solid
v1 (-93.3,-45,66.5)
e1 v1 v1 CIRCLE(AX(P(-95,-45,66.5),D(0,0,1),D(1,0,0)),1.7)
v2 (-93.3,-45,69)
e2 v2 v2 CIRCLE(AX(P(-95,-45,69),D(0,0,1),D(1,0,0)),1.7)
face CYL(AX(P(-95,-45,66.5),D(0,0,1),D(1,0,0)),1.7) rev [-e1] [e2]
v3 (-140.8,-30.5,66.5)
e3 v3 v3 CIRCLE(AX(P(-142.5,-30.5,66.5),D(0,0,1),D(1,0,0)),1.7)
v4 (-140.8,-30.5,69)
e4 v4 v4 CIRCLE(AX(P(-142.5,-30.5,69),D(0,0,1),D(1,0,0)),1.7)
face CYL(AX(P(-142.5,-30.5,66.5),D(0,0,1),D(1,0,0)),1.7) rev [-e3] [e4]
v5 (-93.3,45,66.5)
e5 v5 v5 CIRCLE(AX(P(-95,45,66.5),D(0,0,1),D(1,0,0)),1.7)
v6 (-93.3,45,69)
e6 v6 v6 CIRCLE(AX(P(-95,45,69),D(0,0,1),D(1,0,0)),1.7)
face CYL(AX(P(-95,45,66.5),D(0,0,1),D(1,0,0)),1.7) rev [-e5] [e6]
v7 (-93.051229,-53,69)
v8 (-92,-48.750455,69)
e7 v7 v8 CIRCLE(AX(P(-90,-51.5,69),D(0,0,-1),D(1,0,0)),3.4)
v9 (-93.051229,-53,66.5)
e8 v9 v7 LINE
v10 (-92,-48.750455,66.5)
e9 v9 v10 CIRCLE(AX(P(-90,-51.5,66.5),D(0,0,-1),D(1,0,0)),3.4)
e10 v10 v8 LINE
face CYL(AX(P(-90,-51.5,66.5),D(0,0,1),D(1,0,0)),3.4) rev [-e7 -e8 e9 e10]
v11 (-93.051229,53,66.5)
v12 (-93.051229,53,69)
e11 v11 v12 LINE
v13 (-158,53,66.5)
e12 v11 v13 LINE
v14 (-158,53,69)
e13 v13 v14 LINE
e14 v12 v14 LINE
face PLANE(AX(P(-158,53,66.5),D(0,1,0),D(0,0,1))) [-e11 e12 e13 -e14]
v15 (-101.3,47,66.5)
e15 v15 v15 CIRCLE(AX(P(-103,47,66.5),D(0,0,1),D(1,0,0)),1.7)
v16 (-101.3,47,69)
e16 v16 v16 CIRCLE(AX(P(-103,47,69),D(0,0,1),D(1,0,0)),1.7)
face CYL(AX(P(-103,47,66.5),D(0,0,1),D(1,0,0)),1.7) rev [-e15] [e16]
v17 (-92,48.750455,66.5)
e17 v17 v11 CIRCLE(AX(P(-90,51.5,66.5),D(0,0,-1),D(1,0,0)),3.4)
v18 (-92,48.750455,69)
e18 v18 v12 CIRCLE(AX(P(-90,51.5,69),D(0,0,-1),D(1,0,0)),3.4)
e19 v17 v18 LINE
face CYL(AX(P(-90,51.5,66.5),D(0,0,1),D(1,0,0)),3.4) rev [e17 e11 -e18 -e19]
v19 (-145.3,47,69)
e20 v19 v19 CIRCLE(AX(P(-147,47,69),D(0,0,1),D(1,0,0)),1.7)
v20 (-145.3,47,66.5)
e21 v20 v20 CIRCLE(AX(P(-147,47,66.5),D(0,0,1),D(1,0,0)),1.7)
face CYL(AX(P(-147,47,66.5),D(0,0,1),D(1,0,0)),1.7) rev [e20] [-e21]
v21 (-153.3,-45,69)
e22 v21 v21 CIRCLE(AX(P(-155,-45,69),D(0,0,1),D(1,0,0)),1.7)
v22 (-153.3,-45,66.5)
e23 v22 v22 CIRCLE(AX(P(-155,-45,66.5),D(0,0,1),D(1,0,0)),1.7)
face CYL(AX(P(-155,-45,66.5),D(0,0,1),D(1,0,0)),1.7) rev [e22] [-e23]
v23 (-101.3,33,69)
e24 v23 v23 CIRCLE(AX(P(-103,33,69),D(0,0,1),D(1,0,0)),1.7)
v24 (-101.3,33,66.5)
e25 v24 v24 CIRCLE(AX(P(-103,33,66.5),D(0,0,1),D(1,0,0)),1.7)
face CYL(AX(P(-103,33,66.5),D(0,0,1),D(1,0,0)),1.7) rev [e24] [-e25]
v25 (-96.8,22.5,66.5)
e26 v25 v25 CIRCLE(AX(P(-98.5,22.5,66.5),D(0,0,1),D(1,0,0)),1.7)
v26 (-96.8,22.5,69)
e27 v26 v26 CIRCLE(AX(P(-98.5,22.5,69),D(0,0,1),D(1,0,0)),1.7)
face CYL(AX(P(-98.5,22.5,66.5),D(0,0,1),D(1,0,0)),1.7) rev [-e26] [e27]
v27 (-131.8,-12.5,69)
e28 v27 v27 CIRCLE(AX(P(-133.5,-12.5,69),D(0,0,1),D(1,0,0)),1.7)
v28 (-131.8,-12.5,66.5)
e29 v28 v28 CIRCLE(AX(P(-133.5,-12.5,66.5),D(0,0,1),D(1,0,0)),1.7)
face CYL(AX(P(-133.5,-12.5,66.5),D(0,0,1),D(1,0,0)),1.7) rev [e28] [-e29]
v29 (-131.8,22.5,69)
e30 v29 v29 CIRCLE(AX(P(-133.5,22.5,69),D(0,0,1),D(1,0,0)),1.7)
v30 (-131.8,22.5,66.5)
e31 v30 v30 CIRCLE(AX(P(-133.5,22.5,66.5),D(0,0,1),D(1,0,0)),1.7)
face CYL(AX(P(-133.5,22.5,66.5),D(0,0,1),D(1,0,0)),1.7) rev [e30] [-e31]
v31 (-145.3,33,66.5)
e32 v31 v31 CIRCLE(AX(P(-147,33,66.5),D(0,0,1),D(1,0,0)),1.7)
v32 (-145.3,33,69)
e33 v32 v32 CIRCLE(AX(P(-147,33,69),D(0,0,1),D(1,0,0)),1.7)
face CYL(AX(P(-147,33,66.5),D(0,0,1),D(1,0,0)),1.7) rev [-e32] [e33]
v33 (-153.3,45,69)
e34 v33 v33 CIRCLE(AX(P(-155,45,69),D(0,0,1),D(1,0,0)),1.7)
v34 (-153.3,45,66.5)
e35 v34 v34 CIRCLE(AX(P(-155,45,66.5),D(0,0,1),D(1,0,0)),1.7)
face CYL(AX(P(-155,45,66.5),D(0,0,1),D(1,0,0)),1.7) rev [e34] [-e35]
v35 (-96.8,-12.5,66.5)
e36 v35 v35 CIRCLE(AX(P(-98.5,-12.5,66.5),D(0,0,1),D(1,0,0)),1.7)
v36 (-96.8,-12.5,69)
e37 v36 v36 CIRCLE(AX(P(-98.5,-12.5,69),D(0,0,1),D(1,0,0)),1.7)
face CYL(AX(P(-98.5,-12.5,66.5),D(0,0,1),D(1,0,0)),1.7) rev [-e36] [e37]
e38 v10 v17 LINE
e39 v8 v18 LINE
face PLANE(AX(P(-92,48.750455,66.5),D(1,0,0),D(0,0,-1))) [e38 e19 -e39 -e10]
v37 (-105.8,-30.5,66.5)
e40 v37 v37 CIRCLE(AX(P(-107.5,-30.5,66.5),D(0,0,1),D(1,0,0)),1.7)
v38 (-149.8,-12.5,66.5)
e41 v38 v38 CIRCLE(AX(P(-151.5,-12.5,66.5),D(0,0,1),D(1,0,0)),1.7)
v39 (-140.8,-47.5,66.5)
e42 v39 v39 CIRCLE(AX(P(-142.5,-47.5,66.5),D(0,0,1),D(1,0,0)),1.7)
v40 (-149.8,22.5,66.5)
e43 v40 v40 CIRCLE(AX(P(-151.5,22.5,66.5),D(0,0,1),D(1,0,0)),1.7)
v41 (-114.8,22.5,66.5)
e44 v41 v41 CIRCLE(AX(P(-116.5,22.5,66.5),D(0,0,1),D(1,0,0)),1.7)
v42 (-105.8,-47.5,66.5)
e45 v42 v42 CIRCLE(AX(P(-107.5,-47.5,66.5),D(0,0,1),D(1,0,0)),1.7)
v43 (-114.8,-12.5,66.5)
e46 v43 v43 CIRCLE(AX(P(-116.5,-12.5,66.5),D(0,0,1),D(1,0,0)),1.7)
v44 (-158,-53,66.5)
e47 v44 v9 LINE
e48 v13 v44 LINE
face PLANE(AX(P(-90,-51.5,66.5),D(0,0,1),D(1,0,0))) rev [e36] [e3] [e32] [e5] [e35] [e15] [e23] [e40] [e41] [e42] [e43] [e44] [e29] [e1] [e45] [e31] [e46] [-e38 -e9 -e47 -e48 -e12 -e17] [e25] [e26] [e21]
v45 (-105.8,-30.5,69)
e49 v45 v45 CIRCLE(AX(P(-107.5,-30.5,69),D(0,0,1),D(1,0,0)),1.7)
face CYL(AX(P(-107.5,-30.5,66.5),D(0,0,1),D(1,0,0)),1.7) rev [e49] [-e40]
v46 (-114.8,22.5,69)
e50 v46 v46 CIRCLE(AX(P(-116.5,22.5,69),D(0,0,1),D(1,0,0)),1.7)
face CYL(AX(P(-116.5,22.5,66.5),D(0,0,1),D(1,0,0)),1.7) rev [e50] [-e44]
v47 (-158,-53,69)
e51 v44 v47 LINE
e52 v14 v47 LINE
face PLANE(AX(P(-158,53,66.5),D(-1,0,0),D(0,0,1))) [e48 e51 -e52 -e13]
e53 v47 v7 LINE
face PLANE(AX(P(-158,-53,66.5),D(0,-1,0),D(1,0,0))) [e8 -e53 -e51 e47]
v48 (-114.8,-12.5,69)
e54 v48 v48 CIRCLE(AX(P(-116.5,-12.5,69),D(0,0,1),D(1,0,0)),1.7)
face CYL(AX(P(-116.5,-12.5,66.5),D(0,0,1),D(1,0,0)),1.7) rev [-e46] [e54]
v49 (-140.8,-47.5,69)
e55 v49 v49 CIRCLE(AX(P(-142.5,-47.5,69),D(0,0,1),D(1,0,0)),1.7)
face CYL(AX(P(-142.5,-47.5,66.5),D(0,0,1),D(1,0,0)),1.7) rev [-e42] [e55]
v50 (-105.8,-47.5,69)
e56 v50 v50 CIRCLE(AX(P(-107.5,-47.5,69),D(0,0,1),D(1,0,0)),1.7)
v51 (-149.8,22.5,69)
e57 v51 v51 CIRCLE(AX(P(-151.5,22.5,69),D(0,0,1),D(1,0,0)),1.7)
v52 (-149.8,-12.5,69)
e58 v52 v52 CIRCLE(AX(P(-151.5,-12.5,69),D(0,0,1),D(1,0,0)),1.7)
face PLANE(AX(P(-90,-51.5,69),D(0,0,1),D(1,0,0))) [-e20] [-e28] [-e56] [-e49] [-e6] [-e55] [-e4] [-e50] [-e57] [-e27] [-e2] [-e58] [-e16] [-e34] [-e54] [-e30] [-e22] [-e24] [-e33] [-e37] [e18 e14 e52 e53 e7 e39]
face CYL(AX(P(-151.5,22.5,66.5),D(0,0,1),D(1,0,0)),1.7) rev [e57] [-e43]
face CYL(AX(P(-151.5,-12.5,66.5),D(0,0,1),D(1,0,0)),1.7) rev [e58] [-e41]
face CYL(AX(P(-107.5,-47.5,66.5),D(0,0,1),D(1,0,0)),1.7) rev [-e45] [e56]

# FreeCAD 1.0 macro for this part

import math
import FreeCAD as App
import Part
import Sketcher
from FreeCAD import Vector
Q = App.Units.Quantity

doc = App.newDocument("Part")
body = doc.addObject("PartDesign::Body", "Body")

sketch1 = doc.addObject("Sketcher::SketchObject", "Sketch")
body.addObject(sketch1)
sketch1.AttachmentSupport = (doc.XY_Plane, [""])
sketch1.MapMode = "FlatFace"
sketch1.AttachmentOffset = App.Placement(Vector(0, 0, 69), App.Rotation())
sketch1.addGeometry([
    Part.LineSegment(Vector(-93.1, 53, 0), Vector(-158, 53, 0)),
    Part.LineSegment(Vector(-158, 53, 0), Vector(-158, -53, 0)),
    Part.LineSegment(Vector(-158, -53, 0), Vector(-93.1, -53, 0)),
    Part.ArcOfCircle(Part.Circle(Vector(-90, -51.5, 0), Vector(0, 0, 1), 3.4), math.radians(126), math.radians(206)),
    Part.LineSegment(Vector(-92, -48.8, 0), Vector(-92, 48.8, 0)),
    Part.ArcOfCircle(Part.Circle(Vector(-90, 51.5, 0), Vector(0, 0, 1), 3.4), math.radians(154), math.radians(234)),
    Part.Circle(Vector(-95, -45, 0), Vector(0, 0, 1), 1.7),
    Part.Circle(Vector(-107.5, -47.5, 0), Vector(0, 0, 1), 1.7),
    Part.Circle(Vector(-107.5, -30.5, 0), Vector(0, 0, 1), 1.7),
    Part.Circle(Vector(-98.5, -12.5, 0), Vector(0, 0, 1), 1.7),
    Part.Circle(Vector(-116.5, -12.5, 0), Vector(0, 0, 1), 1.7),
    Part.Circle(Vector(-142.5, -47.5, 0), Vector(0, 0, 1), 1.7),
    Part.Circle(Vector(-155, -45, 0), Vector(0, 0, 1), 1.7),
    Part.Circle(Vector(-142.5, -30.5, 0), Vector(0, 0, 1), 1.7),
    Part.Circle(Vector(-133.5, -12.5, 0), Vector(0, 0, 1), 1.7),
    Part.Circle(Vector(-151.5, -12.5, 0), Vector(0, 0, 1), 1.7),
    Part.Circle(Vector(-98.5, 22.5, 0), Vector(0, 0, 1), 1.7),
    Part.Circle(Vector(-116.5, 22.5, 0), Vector(0, 0, 1), 1.7),
    Part.Circle(Vector(-103, 33, 0), Vector(0, 0, 1), 1.7),
    Part.Circle(Vector(-95, 45, 0), Vector(0, 0, 1), 1.7),
    Part.Circle(Vector(-103, 47, 0), Vector(0, 0, 1), 1.7),
    Part.Circle(Vector(-133.5, 22.5, 0), Vector(0, 0, 1), 1.7),
    Part.Circle(Vector(-151.5, 22.5, 0), Vector(0, 0, 1), 1.7),
    Part.Circle(Vector(-147, 33, 0), Vector(0, 0, 1), 1.7),
    Part.Circle(Vector(-147, 47, 0), Vector(0, 0, 1), 1.7),
    Part.Circle(Vector(-155, 45, 0), Vector(0, 0, 1), 1.7),
], False)
sketch1.addConstraint([
    Sketcher.Constraint("Coincident", 0, 2, 1, 1),
    Sketcher.Constraint("Coincident", 1, 2, 2, 1),
    Sketcher.Constraint("Coincident", 2, 2, 3, 2),
    Sketcher.Constraint("Coincident", 3, 1, 4, 1),
    Sketcher.Constraint("Coincident", 4, 2, 5, 2),
    Sketcher.Constraint("Coincident", 5, 1, 0, 1),
    Sketcher.Constraint("Horizontal", 0),
    Sketcher.Constraint("Vertical", 1),
    Sketcher.Constraint("Horizontal", 2),
    Sketcher.Constraint("Vertical", 4),
    Sketcher.Constraint("Equal", 3, 5),
    Sketcher.Constraint("Equal", 6, 7),
    Sketcher.Constraint("Equal", 7, 8),
    Sketcher.Constraint("Equal", 8, 9),
    Sketcher.Constraint("Equal", 9, 10),
    Sketcher.Constraint("Equal", 10, 11),
    Sketcher.Constraint("Equal", 11, 12),
    Sketcher.Constraint("Equal", 12, 13),
    Sketcher.Constraint("Equal", 13, 14),
    Sketcher.Constraint("Equal", 14, 15),
    Sketcher.Constraint("Equal", 15, 16),
    Sketcher.Constraint("Equal", 16, 17),
    Sketcher.Constraint("Equal", 17, 18),
    Sketcher.Constraint("Equal", 18, 19),
    Sketcher.Constraint("Equal", 19, 20),
    Sketcher.Constraint("Equal", 20, 21),
    Sketcher.Constraint("Equal", 21, 22),
    Sketcher.Constraint("Equal", 22, 23),
    Sketcher.Constraint("Equal", 23, 24),
    Sketcher.Constraint("Equal", 24, 25),
    Sketcher.Constraint("Symmetric", 3, 3, 5, 3, -1),
    Sketcher.Constraint("Symmetric", 6, 3, 19, 3, -1),
    Sketcher.Constraint("Symmetric", 12, 3, 25, 3, -1),
    Sketcher.Constraint("Horizontal", 9, 3, 10, 3),
    Sketcher.Constraint("Horizontal", 7, 3, 11, 3),
    Sketcher.Constraint("Horizontal", 6, 3, 12, 3),
    Sketcher.Constraint("Horizontal", 8, 3, 13, 3),
    Sketcher.Constraint("Horizontal", 10, 3, 14, 3),
    Sketcher.Constraint("Horizontal", 14, 3, 15, 3),
    Sketcher.Constraint("Horizontal", 16, 3, 17, 3),
    Sketcher.Constraint("Horizontal", 17, 3, 21, 3),
    Sketcher.Constraint("Horizontal", 21, 3, 22, 3),
    Sketcher.Constraint("Horizontal", 18, 3, 23, 3),
    Sketcher.Constraint("Horizontal", 20, 3, 24, 3),
    Sketcher.Constraint("Vertical", 7, 3, 8, 3),
    Sketcher.Constraint("Vertical", 11, 3, 13, 3),
    Sketcher.Constraint("Vertical", 9, 3, 16, 3),
    Sketcher.Constraint("Vertical", 10, 3, 17, 3),
    Sketcher.Constraint("Vertical", 18, 3, 20, 3),
    Sketcher.Constraint("Vertical", 14, 3, 21, 3),
    Sketcher.Constraint("Vertical", 15, 3, 22, 3),
    Sketcher.Constraint("Vertical", 23, 3, 24, 3),
    Sketcher.Constraint("Vertical", 2, 2, 5, 1),
    Sketcher.Constraint("Diameter", 6, Q("3.4 mm")),
    Sketcher.Constraint("Radius", 3, Q("3.4 mm")),
    Sketcher.Constraint("DistanceY", 1, 2, 1, 1, Q("106 mm")),
    Sketcher.Constraint("DistanceX", 3, 3, -1, 1, Q("90 mm")),
    Sketcher.Constraint("DistanceX", 6, 3, -1, 1, Q("95 mm")),
    Sketcher.Constraint("DistanceY", 6, 3, -1, 1, Q("45 mm")),
    Sketcher.Constraint("DistanceX", 12, 3, -1, 1, Q("155 mm")),
    Sketcher.Constraint("DistanceX", 18, 3, -1, 1, Q("103 mm")),
    Sketcher.Constraint("DistanceY", -1, 1, 18, 3, Q("33 mm")),
    Sketcher.Constraint("DistanceY", -1, 1, 20, 3, Q("47 mm")),
    Sketcher.Constraint("DistanceX", 23, 3, -1, 1, Q("147 mm")),
    Sketcher.Constraint("DistanceX", 0, 2, -1, 1, Q("158 mm")),
    Sketcher.Constraint("DistanceX", 3, 1, -1, 1, Q("92 mm")),
    Sketcher.Constraint("DistanceY", 3, 3, 5, 3, Q("103 mm")),
    Sketcher.Constraint("DistanceY", 3, 3, 7, 3, Q("4 mm")),
    Sketcher.Constraint("DistanceY", 7, 3, 8, 3, Q("17 mm")),
    Sketcher.Constraint("DistanceX", 8, 3, 9, 3, Q("9 mm")),
    Sketcher.Constraint("DistanceY", 8, 3, 9, 3, Q("18 mm")),
    Sketcher.Constraint("DistanceX", 10, 3, 9, 3, Q("18 mm")),
    Sketcher.Constraint("DistanceX", 11, 3, 7, 3, Q("35 mm")),
    Sketcher.Constraint("DistanceX", 14, 3, 10, 3, Q("17 mm")),
    Sketcher.Constraint("DistanceX", 15, 3, 14, 3, Q("18 mm")),
    Sketcher.Constraint("DistanceY", 16, 3, 5, 3, Q("29 mm")),
    Sketcher.Constraint("DistanceX", 7, 3, -1, 1, Q("107.5 mm")),
])
pad1 = doc.addObject("PartDesign::Pad", "Pad")
body.addObject(pad1)
pad1.Profile = sketch1
pad1.Length = 2.5
pad1.Reversed = True

doc.recompute()
